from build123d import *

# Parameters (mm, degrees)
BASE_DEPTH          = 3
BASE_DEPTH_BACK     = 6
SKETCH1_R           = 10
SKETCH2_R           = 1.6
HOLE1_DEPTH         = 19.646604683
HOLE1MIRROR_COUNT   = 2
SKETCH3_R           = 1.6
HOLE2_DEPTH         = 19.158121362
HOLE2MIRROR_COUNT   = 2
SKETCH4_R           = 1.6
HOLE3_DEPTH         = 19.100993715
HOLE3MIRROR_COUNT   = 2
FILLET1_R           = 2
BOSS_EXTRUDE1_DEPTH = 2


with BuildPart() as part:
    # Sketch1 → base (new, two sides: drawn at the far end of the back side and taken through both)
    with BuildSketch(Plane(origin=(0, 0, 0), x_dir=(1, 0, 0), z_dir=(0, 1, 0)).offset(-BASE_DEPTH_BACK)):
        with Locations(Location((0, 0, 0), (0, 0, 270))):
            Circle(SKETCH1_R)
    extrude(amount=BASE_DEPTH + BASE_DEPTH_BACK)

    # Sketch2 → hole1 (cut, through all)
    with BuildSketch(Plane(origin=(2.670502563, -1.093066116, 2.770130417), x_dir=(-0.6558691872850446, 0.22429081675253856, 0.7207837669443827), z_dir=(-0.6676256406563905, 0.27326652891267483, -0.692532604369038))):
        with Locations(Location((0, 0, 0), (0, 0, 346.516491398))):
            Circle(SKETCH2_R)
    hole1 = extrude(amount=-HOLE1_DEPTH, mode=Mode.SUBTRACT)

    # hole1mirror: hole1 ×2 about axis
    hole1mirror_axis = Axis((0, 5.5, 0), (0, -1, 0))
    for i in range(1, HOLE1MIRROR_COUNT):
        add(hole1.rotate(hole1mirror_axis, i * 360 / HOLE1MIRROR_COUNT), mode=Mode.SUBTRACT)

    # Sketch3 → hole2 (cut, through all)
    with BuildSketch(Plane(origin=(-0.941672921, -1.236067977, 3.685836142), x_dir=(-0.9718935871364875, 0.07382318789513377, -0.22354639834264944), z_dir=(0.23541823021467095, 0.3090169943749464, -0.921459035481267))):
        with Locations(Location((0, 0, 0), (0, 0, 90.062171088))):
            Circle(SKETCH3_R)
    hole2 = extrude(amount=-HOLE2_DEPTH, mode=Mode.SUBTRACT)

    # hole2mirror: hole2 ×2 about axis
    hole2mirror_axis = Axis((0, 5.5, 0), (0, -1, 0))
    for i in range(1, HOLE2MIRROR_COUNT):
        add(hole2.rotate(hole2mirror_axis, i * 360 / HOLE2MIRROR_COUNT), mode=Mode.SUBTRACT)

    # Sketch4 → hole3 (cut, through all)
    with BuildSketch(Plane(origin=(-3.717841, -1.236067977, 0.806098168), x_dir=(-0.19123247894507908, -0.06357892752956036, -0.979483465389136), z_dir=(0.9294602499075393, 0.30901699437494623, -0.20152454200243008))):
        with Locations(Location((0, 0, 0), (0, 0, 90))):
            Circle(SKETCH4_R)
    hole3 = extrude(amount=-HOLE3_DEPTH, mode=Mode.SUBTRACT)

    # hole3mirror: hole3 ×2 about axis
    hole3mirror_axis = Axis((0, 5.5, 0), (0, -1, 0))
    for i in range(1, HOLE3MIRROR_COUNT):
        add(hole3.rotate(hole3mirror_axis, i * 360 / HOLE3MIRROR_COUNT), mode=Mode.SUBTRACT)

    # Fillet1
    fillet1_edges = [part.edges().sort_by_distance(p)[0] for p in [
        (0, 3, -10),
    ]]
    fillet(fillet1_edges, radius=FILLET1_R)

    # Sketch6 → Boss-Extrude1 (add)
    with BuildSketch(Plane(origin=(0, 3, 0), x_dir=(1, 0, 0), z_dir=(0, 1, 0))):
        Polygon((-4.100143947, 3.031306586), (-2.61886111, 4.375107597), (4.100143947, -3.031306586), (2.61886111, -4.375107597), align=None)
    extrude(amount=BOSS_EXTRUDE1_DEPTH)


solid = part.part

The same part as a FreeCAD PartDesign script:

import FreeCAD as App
import Part
import Sketcher


def edges_at(feature, points):
    """Names of the edges that pass closest to the given points."""
    edges = feature.Shape.Edges
    near = lambda p: min(range(len(edges)), key=lambda i: edges[i].distToShape(Part.Vertex(*p))[0])
    return sorted({f"Edge{near(p) + 1}" for p in points})

doc = App.newDocument("Part")
body = doc.addObject("PartDesign::Body", "Body")

# Sketch on XZ plane
sketch1 = body.newObject("Sketcher::SketchObject", "Sketch")
sketch1.AttachmentSupport = (doc.getObject("XZ_Plane"), [""])
sketch1.MapMode = "FlatFace"
sketch1.addGeometry(Part.Circle(App.Vector(0, 0, 0), App.Vector(0, 0, 1), 10), False)
sketch1.addConstraint(Sketcher.Constraint("Coincident", 0, 3, -1, 1))
sketch1.addConstraint(Sketcher.Constraint("Diameter", 0, 20.0))
pad1 = body.newObject("PartDesign::Pad", "Pad")
pad1.Profile = sketch1
pad1.Type = "TwoLengths"
pad1.Length = 3
pad1.Length2 = 6
pad1.Reversed = True

# Sketch on an angled plane
sketch2 = body.newObject("Sketcher::SketchObject", "Sketch001")
sketch2.Placement = App.Placement(App.Vector(2.670503, -1.093066, 2.77013), App.Rotation(App.Vector(-0.655869187, 0.224290817, 0.720783767), App.Vector(0.352294782, 0.93542452, 0.029484796), App.Vector(-0.667625641, 0.273266529, -0.692532604), "ZXY"))
sketch2.addGeometry(Part.Circle(App.Vector(0, 0, 0), App.Vector(0, 0, 1), 1.6), False)
sketch2.addConstraint(Sketcher.Constraint("Coincident", 0, 3, -1, 1))
sketch2.addConstraint(Sketcher.Constraint("Diameter", 0, 3.2))
pocket1 = body.newObject("PartDesign::Pocket", "Pocket")
pocket1.Profile = sketch2
pocket1.Type = "ThroughAll"
doc.recompute()

polarpattern = body.newObject("PartDesign::PolarPattern", "PolarPattern")
polarpattern.Originals = [pocket1]
polarpattern.Axis = (doc.getObject("Y_Axis"), [""])
polarpattern.Angle = 360
polarpattern.Occurrences = 2
body.Tip = polarpattern

# Sketch on an angled plane
sketch3 = body.newObject("Sketcher::SketchObject", "Sketch002")
sketch3.Placement = App.Placement(App.Vector(-0.941673, -1.236068, 3.685836), App.Rotation(App.Vector(-0.971893587, 0.073823188, -0.223546398), App.Vector(-0.001054592, 0.948187024, 0.317710959), App.Vector(0.23541823, 0.309016994, -0.921459035), "ZXY"))
sketch3.addGeometry(Part.Circle(App.Vector(0, 0, 0), App.Vector(0, 0, 1), 1.6), False)
sketch3.addConstraint(Sketcher.Constraint("Coincident", 0, 3, -1, 1))
sketch3.addConstraint(Sketcher.Constraint("Diameter", 0, 3.2))
pocket2 = body.newObject("PartDesign::Pocket", "Pocket001")
pocket2.Profile = sketch3
pocket2.Type = "ThroughAll"
doc.recompute()

polarpattern2 = body.newObject("PartDesign::PolarPattern", "PolarPattern001")
polarpattern2.Originals = [pocket2]
polarpattern2.Axis = (doc.getObject("Y_Axis"), [""])
polarpattern2.Angle = 360
polarpattern2.Occurrences = 2
body.Tip = polarpattern2

# Sketch on an angled plane
sketch4 = body.newObject("Sketcher::SketchObject", "Sketch003")
sketch4.Placement = App.Placement(App.Vector(-3.717841, -1.236068, 0.806098), App.Rotation(App.Vector(-0.191232479, -0.063578928, -0.979483465), App.Vector(-0.31548975, 0.948928984, 0), App.Vector(0.92946025, 0.309016994, -0.201524542), "ZXY"))
sketch4.addGeometry(Part.Circle(App.Vector(0, 0, 0), App.Vector(0, 0, 1), 1.6), False)
sketch4.addConstraint(Sketcher.Constraint("Coincident", 0, 3, -1, 1))
sketch4.addConstraint(Sketcher.Constraint("Diameter", 0, 3.2))
pocket3 = body.newObject("PartDesign::Pocket", "Pocket002")
pocket3.Profile = sketch4
pocket3.Type = "ThroughAll"
doc.recompute()

polarpattern3 = body.newObject("PartDesign::PolarPattern", "PolarPattern002")
polarpattern3.Originals = [pocket3]
polarpattern3.Axis = (doc.getObject("Y_Axis"), [""])
polarpattern3.Angle = 360
polarpattern3.Occurrences = 2
body.Tip = polarpattern3
doc.recompute()

fillet = body.newObject("PartDesign::Fillet", "Fillet")
fillet.Base = (polarpattern3, edges_at(polarpattern3, [(0, 3, -10)]))
fillet.Radius = 2

# Sketch on XZ plane
sketch5 = body.newObject("Sketcher::SketchObject", "Sketch004")
sketch5.AttachmentSupport = (doc.getObject("XZ_Plane"), [""])
sketch5.MapMode = "FlatFace"
sketch5.AttachmentOffset = App.Placement(App.Vector(0, 0, -3), App.Rotation())
sketch5.addGeometry(Part.LineSegment(App.Vector(-2.6, -4.4, 0), App.Vector(-4.1, -3, 0)), False)
sketch5.addGeometry(Part.LineSegment(App.Vector(-4.1, -3, 0), App.Vector(2.6, 4.4, 0)), False)
sketch5.addGeometry(Part.LineSegment(App.Vector(2.6, 4.4, 0), App.Vector(4.1, 3, 0)), False)
sketch5.addGeometry(Part.LineSegment(App.Vector(4.1, 3, 0), App.Vector(-2.6, -4.4, 0)), False)
sketch5.addConstraint(Sketcher.Constraint("Coincident", 0, 2, 1, 1))
sketch5.addConstraint(Sketcher.Constraint("Coincident", 1, 2, 2, 1))
sketch5.addConstraint(Sketcher.Constraint("Coincident", 2, 2, 3, 1))
sketch5.addConstraint(Sketcher.Constraint("Coincident", 3, 2, 0, 1))
sketch5.addConstraint(Sketcher.Constraint("Symmetric", 0, 2, 2, 2, -1, 1))
sketch5.addConstraint(Sketcher.Constraint("Symmetric", 1, 2, 3, 2, -1, 1))
sketch5.addConstraint(Sketcher.Constraint("Perpendicular", 0, 1))
sketch5.addConstraint(Sketcher.Constraint("Distance", 0, 2.0))
sketch5.addConstraint(Sketcher.Constraint("Distance", 1, 10.0))
sketch5.addConstraint(Sketcher.Constraint("DistanceY", 2, 2, 1, 2, 1.343801))
pad2 = body.newObject("PartDesign::Pad", "Pad001")
pad2.Profile = sketch5
pad2.Length = 2
pad2.Reversed = True

doc.recompute()
